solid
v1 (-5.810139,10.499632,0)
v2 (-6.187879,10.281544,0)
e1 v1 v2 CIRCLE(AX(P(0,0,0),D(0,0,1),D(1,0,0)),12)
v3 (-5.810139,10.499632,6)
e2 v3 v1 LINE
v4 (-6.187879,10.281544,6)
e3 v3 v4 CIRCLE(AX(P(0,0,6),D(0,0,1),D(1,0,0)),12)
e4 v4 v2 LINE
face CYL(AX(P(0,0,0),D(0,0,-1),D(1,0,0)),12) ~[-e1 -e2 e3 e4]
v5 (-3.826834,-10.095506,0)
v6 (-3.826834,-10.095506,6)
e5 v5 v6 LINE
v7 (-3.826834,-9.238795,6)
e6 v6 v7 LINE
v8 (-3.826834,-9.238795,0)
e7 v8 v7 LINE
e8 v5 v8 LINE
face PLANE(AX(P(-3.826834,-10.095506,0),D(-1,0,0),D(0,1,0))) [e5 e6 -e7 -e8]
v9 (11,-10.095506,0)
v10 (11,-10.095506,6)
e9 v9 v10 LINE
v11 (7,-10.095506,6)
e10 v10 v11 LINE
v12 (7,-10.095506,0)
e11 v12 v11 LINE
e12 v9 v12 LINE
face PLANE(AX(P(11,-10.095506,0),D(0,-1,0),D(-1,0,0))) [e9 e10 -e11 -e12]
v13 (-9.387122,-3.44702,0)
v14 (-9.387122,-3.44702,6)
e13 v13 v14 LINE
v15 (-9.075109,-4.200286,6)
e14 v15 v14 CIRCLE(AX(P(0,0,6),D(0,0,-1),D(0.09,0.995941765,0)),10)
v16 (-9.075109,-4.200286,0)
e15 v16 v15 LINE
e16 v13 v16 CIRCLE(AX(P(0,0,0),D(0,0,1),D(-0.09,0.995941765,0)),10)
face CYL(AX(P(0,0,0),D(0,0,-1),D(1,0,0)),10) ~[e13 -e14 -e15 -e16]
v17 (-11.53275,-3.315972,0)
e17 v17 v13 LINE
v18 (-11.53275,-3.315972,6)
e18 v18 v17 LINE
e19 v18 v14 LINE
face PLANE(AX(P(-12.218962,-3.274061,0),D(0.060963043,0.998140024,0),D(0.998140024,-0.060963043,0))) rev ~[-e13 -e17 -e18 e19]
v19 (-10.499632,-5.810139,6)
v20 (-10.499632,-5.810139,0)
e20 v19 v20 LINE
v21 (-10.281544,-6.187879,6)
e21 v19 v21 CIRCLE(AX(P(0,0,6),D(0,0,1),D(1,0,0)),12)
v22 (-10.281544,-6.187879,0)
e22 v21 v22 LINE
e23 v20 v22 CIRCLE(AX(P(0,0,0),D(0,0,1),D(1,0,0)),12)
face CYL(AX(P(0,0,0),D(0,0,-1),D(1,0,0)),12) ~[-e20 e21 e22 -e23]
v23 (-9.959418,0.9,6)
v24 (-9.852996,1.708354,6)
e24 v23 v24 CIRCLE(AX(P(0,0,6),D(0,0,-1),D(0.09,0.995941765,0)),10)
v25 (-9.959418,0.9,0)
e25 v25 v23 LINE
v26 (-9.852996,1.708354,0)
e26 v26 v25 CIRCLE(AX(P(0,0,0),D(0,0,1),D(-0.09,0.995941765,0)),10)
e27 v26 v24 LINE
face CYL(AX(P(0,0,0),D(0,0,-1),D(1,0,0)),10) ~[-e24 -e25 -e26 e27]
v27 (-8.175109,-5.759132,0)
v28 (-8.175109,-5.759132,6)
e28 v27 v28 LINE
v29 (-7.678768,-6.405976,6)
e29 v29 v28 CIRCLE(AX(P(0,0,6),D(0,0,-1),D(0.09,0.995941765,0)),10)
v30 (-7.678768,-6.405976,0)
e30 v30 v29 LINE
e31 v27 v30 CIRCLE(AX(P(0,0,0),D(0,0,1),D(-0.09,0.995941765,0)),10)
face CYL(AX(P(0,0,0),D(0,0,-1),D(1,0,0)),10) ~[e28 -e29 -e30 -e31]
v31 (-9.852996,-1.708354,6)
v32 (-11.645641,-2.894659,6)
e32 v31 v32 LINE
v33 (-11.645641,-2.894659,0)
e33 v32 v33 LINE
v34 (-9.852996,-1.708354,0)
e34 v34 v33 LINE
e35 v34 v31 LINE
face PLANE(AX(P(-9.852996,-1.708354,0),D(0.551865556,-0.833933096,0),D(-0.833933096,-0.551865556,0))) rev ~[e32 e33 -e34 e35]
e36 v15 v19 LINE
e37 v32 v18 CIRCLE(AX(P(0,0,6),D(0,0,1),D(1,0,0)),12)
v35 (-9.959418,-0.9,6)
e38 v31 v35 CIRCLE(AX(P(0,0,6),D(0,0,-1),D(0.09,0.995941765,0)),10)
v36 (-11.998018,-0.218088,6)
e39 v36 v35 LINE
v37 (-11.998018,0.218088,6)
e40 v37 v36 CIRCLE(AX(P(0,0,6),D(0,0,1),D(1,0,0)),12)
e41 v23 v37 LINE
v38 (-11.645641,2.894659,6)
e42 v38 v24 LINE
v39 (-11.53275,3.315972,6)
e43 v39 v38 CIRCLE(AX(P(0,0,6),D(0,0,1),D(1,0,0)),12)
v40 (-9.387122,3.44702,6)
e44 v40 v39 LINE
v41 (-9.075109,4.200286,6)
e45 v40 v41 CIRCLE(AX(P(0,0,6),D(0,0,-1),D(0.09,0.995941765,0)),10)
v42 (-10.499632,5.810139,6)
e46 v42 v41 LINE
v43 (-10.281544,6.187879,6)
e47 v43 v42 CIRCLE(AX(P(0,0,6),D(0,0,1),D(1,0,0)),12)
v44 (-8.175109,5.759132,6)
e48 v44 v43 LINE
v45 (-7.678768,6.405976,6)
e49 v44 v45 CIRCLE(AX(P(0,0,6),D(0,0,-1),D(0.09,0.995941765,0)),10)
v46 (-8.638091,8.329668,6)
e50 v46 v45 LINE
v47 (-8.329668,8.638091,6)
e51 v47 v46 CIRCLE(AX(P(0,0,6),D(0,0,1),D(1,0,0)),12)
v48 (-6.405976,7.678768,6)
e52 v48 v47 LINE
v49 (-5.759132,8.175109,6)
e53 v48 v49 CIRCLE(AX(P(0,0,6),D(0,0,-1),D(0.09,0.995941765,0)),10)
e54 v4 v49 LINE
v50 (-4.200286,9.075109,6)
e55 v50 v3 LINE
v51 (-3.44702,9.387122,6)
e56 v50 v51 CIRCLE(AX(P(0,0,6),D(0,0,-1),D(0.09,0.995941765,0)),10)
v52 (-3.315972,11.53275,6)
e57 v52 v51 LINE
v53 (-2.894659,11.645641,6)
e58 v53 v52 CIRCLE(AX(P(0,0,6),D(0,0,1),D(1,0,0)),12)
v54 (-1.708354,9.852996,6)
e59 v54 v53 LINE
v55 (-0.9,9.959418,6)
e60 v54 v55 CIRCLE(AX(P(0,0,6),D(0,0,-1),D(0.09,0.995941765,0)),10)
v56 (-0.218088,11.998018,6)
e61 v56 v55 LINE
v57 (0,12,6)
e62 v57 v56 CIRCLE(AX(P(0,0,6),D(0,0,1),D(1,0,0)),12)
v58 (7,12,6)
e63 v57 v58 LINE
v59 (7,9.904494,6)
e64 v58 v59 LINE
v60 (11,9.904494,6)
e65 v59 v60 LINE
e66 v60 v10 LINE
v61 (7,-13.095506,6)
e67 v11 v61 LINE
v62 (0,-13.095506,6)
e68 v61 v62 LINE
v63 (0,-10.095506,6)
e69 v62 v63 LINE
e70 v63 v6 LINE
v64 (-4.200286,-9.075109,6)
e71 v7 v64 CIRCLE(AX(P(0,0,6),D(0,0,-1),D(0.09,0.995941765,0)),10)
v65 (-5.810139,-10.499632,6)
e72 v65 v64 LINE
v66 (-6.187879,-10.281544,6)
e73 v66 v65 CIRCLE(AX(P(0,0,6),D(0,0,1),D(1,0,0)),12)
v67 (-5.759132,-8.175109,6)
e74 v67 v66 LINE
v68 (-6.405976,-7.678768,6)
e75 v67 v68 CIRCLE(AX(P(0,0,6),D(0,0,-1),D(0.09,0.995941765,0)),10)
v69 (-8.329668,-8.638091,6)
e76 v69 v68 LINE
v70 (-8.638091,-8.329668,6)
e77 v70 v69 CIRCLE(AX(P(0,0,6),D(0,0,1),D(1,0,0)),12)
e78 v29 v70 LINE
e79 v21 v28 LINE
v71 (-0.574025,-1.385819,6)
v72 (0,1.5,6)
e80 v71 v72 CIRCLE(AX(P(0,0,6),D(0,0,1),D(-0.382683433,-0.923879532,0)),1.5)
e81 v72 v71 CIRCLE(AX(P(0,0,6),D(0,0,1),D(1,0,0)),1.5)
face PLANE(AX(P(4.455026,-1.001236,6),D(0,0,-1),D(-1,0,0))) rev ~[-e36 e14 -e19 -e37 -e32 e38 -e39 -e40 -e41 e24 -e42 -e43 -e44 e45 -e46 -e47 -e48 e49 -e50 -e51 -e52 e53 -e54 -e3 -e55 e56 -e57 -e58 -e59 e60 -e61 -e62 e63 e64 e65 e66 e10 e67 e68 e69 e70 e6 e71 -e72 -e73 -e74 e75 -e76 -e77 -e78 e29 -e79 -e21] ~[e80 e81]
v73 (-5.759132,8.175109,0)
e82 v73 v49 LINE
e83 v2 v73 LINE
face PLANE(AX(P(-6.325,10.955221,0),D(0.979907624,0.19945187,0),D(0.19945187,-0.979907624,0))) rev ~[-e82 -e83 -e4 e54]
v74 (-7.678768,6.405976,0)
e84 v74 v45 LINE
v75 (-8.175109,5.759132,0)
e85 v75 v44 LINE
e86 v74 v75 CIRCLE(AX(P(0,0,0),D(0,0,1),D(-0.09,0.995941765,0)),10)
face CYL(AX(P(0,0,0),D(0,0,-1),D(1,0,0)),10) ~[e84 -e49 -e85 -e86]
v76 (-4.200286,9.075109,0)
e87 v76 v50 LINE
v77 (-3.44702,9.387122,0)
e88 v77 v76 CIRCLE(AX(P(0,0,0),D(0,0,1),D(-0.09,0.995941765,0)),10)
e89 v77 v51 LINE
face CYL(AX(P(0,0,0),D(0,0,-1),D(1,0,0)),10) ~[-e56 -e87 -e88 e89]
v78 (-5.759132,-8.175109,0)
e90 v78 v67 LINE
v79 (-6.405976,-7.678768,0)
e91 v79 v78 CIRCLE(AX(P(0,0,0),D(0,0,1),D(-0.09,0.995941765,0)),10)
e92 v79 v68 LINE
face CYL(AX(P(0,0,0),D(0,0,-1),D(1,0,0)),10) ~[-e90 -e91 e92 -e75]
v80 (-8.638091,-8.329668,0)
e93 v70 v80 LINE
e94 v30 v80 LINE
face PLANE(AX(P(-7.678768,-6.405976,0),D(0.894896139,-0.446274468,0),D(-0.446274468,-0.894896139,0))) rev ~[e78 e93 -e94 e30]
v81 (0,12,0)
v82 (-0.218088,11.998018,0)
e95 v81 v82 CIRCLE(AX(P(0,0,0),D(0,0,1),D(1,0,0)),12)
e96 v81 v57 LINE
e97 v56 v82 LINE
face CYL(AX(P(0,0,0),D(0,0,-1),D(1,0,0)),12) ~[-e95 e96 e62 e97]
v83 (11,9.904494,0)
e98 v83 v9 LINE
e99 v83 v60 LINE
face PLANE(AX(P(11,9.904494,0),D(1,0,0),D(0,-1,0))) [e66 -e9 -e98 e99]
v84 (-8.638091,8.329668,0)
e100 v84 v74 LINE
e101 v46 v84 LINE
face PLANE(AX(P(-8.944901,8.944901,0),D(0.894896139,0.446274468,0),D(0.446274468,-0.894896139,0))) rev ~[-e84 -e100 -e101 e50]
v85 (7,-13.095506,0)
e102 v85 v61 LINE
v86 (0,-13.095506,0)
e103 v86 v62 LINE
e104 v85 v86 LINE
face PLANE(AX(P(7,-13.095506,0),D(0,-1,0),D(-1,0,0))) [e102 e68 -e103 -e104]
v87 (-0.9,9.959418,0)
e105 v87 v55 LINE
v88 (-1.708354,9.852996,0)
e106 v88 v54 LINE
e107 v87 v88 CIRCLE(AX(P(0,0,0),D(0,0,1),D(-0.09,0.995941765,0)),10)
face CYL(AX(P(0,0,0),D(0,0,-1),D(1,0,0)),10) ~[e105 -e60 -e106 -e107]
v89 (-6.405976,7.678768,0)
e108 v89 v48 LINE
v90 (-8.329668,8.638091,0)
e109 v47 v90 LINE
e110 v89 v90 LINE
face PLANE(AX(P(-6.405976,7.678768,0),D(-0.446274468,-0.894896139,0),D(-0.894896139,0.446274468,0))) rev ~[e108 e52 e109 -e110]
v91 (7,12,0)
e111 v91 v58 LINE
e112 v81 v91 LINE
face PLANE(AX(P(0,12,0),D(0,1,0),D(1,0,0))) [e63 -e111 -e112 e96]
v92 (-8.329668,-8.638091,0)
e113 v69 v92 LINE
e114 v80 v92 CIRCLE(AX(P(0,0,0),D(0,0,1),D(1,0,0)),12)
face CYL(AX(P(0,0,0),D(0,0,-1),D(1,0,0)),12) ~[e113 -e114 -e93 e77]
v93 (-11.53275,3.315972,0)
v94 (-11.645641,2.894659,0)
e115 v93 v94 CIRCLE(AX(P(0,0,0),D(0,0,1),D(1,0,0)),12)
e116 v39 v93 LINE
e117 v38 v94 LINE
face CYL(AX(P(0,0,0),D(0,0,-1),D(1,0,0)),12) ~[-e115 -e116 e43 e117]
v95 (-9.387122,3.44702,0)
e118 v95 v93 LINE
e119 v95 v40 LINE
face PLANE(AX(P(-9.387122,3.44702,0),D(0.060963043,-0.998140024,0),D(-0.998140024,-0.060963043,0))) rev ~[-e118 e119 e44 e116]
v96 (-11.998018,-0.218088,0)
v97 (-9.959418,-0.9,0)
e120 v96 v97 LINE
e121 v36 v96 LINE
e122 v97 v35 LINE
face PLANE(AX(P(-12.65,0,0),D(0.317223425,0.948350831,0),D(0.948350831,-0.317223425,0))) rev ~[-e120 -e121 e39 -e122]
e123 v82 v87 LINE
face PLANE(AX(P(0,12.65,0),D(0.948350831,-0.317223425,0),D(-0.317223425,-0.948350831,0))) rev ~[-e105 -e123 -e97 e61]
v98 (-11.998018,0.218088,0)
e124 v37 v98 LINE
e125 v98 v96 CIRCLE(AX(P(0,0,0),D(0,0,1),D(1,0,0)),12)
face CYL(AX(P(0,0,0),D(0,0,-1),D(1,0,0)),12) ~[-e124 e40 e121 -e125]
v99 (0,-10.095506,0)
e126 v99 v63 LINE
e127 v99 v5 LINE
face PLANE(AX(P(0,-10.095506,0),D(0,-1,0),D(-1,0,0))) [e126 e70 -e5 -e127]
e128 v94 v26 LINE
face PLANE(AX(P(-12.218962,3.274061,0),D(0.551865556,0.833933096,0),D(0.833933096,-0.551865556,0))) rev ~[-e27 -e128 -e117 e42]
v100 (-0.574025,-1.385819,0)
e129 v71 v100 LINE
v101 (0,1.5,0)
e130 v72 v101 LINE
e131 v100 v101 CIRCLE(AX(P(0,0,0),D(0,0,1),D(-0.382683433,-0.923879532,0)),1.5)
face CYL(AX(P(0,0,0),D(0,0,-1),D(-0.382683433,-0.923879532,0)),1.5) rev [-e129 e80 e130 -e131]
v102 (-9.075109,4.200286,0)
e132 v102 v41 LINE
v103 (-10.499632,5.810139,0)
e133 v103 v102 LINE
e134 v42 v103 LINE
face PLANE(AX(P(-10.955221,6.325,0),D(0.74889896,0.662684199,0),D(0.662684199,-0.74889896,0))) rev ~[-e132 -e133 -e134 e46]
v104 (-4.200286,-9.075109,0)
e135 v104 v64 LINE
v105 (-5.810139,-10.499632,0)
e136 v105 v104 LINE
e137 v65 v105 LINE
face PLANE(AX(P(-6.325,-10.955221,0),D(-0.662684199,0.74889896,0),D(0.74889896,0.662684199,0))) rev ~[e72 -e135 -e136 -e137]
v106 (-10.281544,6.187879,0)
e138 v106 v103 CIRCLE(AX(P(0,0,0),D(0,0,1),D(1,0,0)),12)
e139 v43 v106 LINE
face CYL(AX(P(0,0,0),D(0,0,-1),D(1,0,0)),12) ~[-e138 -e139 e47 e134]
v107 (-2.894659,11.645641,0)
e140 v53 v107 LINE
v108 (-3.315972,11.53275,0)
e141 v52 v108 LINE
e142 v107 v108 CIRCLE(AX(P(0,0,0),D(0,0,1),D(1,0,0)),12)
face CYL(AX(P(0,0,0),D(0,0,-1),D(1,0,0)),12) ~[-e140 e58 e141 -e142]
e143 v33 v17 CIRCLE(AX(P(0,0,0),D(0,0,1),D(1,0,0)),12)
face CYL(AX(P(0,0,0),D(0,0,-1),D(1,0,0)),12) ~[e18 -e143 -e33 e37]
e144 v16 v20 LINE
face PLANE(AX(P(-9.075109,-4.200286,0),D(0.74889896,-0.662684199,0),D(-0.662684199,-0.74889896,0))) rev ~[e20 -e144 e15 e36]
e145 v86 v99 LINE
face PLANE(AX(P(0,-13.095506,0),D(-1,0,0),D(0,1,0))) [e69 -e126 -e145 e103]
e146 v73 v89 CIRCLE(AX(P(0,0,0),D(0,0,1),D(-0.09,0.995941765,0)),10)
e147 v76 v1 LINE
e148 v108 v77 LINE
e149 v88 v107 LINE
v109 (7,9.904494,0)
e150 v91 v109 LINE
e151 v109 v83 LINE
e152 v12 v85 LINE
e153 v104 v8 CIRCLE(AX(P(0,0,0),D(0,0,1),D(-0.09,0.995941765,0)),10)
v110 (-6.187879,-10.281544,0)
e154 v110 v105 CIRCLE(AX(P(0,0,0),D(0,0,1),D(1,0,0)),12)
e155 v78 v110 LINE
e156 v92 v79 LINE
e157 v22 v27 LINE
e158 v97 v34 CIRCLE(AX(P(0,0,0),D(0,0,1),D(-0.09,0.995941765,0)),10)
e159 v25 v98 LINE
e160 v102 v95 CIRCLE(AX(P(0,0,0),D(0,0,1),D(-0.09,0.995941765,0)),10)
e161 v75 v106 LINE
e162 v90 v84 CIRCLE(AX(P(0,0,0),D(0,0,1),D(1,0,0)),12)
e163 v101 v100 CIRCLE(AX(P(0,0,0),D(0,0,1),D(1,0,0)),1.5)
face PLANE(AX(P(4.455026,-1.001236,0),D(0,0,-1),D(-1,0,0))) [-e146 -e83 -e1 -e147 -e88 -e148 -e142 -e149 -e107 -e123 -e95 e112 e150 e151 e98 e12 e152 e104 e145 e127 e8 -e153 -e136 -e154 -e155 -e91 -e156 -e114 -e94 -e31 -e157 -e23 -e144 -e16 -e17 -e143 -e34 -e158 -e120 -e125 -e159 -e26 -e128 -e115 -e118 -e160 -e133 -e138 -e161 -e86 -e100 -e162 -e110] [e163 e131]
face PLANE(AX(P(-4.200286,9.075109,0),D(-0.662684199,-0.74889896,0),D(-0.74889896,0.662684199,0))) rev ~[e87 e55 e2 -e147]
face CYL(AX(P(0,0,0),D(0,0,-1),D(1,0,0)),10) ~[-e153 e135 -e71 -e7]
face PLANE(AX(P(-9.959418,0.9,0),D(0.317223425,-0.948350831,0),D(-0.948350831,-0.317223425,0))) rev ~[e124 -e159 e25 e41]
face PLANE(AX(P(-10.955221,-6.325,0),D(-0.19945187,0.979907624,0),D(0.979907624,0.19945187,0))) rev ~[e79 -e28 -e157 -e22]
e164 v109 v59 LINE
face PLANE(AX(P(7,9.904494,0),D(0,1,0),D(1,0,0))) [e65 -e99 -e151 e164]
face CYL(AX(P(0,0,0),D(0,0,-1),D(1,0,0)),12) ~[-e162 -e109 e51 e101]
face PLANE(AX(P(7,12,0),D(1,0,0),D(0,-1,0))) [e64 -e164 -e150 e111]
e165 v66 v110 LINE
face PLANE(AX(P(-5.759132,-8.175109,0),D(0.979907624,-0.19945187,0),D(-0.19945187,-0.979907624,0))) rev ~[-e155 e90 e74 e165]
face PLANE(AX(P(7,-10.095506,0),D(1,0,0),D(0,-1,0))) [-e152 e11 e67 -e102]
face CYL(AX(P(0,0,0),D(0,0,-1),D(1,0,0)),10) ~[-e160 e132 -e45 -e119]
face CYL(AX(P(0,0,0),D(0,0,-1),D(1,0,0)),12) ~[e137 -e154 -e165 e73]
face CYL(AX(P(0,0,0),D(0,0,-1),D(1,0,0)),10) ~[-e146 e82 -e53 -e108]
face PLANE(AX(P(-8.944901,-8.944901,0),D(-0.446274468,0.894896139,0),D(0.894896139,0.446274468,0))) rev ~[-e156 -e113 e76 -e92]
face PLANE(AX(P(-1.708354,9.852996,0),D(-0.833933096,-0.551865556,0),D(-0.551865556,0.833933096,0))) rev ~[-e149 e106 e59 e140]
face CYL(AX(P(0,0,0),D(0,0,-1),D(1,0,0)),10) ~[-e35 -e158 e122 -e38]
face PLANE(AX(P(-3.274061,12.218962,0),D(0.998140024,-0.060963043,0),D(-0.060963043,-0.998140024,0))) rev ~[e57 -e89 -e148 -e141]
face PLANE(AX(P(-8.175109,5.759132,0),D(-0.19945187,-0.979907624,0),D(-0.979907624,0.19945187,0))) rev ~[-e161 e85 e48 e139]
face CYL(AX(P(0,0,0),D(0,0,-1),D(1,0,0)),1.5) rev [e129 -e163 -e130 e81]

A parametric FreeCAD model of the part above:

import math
import FreeCAD as App
import Part
import Sketcher
Q = App.Units.Quantity

doc = App.newDocument("Part")
body = doc.addObject("PartDesign::Body", "Body")

sketch1 = body.newObject("Sketcher::SketchObject", "Sketch")
sketch1.AttachmentSupport = (doc.getObject("XY_Plane"), [""])
sketch1.MapMode = "FlatFace"
sketch1.addGeometry(Part.Circle(App.Vector(0, 0, 0), App.Vector(0, 0, 1), 10), False)
sketch1.addConstraint([
    Sketcher.Constraint("Coincident", 0, 3, -1, 1),
    Sketcher.Constraint("Diameter", 0, Q("20 mm")),
])
pad1 = body.newObject("PartDesign::Pad", "Pad")
pad1.Profile = sketch1
pad1.Length = 6

sketch2 = body.newObject("Sketcher::SketchObject", "Sketch001")
sketch2.AttachmentSupport = (doc.getObject("XY_Plane"), [""])
sketch2.MapMode = "FlatFace"
sketch2.addGeometry([
    Part.LineSegment(App.Vector(0, 12.7, 0), App.Vector(-0.9, 10, 0)),
    Part.ArcOfCircle(Part.Circle(App.Vector(0, 0, 0), App.Vector(0, 0, 1), 10), math.radians(84.84), math.radians(95.16)),
    Part.LineSegment(App.Vector(0.9, 10, 0), App.Vector(0, 12.7, 0)),
], False)
sketch2.addConstraint([
    Sketcher.Constraint("Coincident", 0, 2, 1, 2),
    Sketcher.Constraint("Coincident", 1, 1, 2, 1),
    Sketcher.Constraint("Coincident", 2, 2, 0, 1),
    Sketcher.Constraint("Coincident", 1, 3, -1, 1),
    Sketcher.Constraint("PointOnObject", 2, 2, -2),
    Sketcher.Constraint("Horizontal", 0, 2, 1, 1),
    Sketcher.Constraint("Radius", 1, Q("10 mm")),
    Sketcher.Constraint("DistanceX", 0, 2, -1, 1, Q("0.9 mm")),
    Sketcher.Constraint("DistanceY", -1, 1, 2, 2, Q("12.65 mm")),
])
pad2 = body.newObject("PartDesign::Pad", "Pad001")
pad2.Profile = sketch2
pad2.Length = 6
doc.recompute()

polarpattern = body.newObject("PartDesign::PolarPattern", "PolarPattern")
polarpattern.Originals = [pad2]
polarpattern.Axis = (doc.getObject("Z_Axis"), [""])
polarpattern.Angle = 360
polarpattern.Occurrences = 24
body.Tip = polarpattern

sketch3 = body.newObject("Sketcher::SketchObject", "Sketch002")
sketch3.AttachmentSupport = (doc.getObject("XY_Plane"), [""])
sketch3.MapMode = "FlatFace"
sketch3.addGeometry([
    Part.Circle(App.Vector(0, 0, 0), App.Vector(0, 0, 1), 13),
    Part.Circle(App.Vector(0, 0, 0), App.Vector(0, 0, 1), 12),
], False)
sketch3.addConstraint([
    Sketcher.Constraint("Coincident", 0, 3, -1, 1),
    Sketcher.Constraint("Coincident", 1, 3, -1, 1),
    Sketcher.Constraint("Diameter", 1, Q("24 mm")),
    Sketcher.Constraint("Diameter", 0, Q("25.3 mm")),
])
pocket1 = body.newObject("PartDesign::Pocket", "Pocket")
pocket1.Profile = sketch3
pocket1.Length = 6
pocket1.Reversed = True

sketch4 = body.newObject("Sketcher::SketchObject", "Sketch003")
sketch4.AttachmentSupport = (doc.getObject("XY_Plane"), [""])
sketch4.MapMode = "FlatFace"
sketch4.addGeometry([
    Part.LineSegment(App.Vector(0, 12, 0), App.Vector(0, 0, 0)),
    Part.LineSegment(App.Vector(0, 0, 0), App.Vector(-3.8, -9.2, 0)),
    Part.LineSegment(App.Vector(-3.8, -9.2, 0), App.Vector(-4.6, -11.1, 0)),
    Part.ArcOfCircle(Part.Circle(App.Vector(0, 0, 0), App.Vector(0, 0, 1), 12), math.radians(-112), math.radians(90)),
], False)
sketch4.addConstraint([
    Sketcher.Constraint("Coincident", 0, 2, 1, 1),
    Sketcher.Constraint("Coincident", 1, 2, 2, 1),
    Sketcher.Constraint("Coincident", 2, 2, 3, 1),
    Sketcher.Constraint("Coincident", 3, 2, 0, 1),
    Sketcher.Constraint("Vertical", 0),
    Sketcher.Constraint("Coincident", 3, 3, -1, 1),
    Sketcher.Constraint("Coincident", 0, 2, -1, 1),
    Sketcher.Constraint("Parallel", 1, 2),
    Sketcher.Constraint("Radius", 3, Q("12 mm")),
    Sketcher.Constraint("Distance", 1, Q("10 mm")),
    Sketcher.Constraint("Angle", 1, Q("-112.5 deg")),
])
pocket2 = body.newObject("PartDesign::Pocket", "Pocket001")
pocket2.Profile = sketch4
pocket2.Length = 6
pocket2.Reversed = True

sketch5 = body.newObject("Sketcher::SketchObject", "Sketch004")
sketch5.AttachmentSupport = (doc.getObject("XY_Plane"), [""])
sketch5.MapMode = "FlatFace"
sketch5.addGeometry(Part.Circle(App.Vector(0, 0, 0), App.Vector(0, 0, 1), 1.5), False)
sketch5.addConstraint([
    Sketcher.Constraint("Coincident", 0, 3, -1, 1),
    Sketcher.Constraint("Diameter", 0, Q("3 mm")),
])
pocket3 = body.newObject("PartDesign::Pocket", "Pocket002")
pocket3.Profile = sketch5
pocket3.Length = 6
pocket3.Reversed = True

sketch6 = body.newObject("Sketcher::SketchObject", "Sketch005")
sketch6.AttachmentSupport = (doc.getObject("XY_Plane"), [""])
sketch6.MapMode = "FlatFace"
sketch6.addGeometry([
    Part.LineSegment(App.Vector(0, 12, 0), App.Vector(0, 1.5, 0)),
    Part.ArcOfCircle(Part.Circle(App.Vector(0, 0, 0), App.Vector(0, 0, 1), 1.5), math.radians(-113), math.radians(90)),
    Part.LineSegment(App.Vector(-0.6, -1.4, 0), App.Vector(-3.8, -9.2, 0)),
    Part.LineSegment(App.Vector(-3.8, -9.2, 0), App.Vector(-3.8, -10.1, 0)),
    Part.LineSegment(App.Vector(-3.8, -10.1, 0), App.Vector(0, -10.1, 0)),
    Part.LineSegment(App.Vector(0, -10.1, 0), App.Vector(0, -13.1, 0)),
    Part.LineSegment(App.Vector(0, -13.1, 0), App.Vector(7, -13.1, 0)),
    Part.LineSegment(App.Vector(7, -13.1, 0), App.Vector(7, -10.1, 0)),
    Part.LineSegment(App.Vector(7, -10.1, 0), App.Vector(11, -10.1, 0)),
    Part.LineSegment(App.Vector(11, -10.1, 0), App.Vector(11, 9.9, 0)),
    Part.LineSegment(App.Vector(11, 9.9, 0), App.Vector(7, 9.9, 0)),
    Part.LineSegment(App.Vector(7, 9.9, 0), App.Vector(7, 12, 0)),
    Part.LineSegment(App.Vector(7, 12, 0), App.Vector(0, 12, 0)),
], False)
sketch6.addConstraint([
    Sketcher.Constraint("Coincident", 0, 2, 1, 2),
    Sketcher.Constraint("Coincident", 1, 1, 2, 1),
    Sketcher.Constraint("Coincident", 2, 2, 3, 1),
    Sketcher.Constraint("Coincident", 3, 2, 4, 1),
    Sketcher.Constraint("Coincident", 4, 2, 5, 1),
    Sketcher.Constraint("Coincident", 5, 2, 6, 1),
    Sketcher.Constraint("Coincident", 6, 2, 7, 1),
    Sketcher.Constraint("Coincident", 7, 2, 8, 1),
    Sketcher.Constraint("Coincident", 8, 2, 9, 1),
    Sketcher.Constraint("Coincident", 9, 2, 10, 1),
    Sketcher.Constraint("Coincident", 10, 2, 11, 1),
    Sketcher.Constraint("Coincident", 11, 2, 12, 1),
    Sketcher.Constraint("Coincident", 12, 2, 0, 1),
    Sketcher.Constraint("Vertical", 0),
    Sketcher.Constraint("Vertical", 3),
    Sketcher.Constraint("Horizontal", 4),
    Sketcher.Constraint("Vertical", 5),
    Sketcher.Constraint("Horizontal", 6),
    Sketcher.Constraint("Vertical", 7),
    Sketcher.Constraint("Horizontal", 8),
    Sketcher.Constraint("Vertical", 9),
    Sketcher.Constraint("Horizontal", 10),
    Sketcher.Constraint("Vertical", 11),
    Sketcher.Constraint("Horizontal", 12),
    Sketcher.Constraint("Coincident", 1, 3, -1, 1),
    Sketcher.Constraint("PointOnObject", 0, 2, -2),
    Sketcher.Constraint("PointOnObject", 4, 2, -2),
    Sketcher.Constraint("Horizontal", 4, 2, 7, 2),
    Sketcher.Constraint("Vertical", 7, 2, 10, 2),
    Sketcher.Constraint("Radius", 1, Q("1.5 mm")),
    Sketcher.Constraint("DistanceX", 6, 1, 6, 2, Q("7 mm")),
    Sketcher.Constraint("DistanceX", 8, 1, 8, 2, Q("4 mm")),
    Sketcher.Constraint("DistanceY", 5, 2, 5, 1, Q("3 mm")),
    Sketcher.Constraint("DistanceY", 9, 1, 9, 2, Q("20 mm")),
    Sketcher.Constraint("DistanceY", 0, 2, 0, 1, Q("10.5 mm")),
    Sketcher.Constraint("Angle", 2, Q("-112.5 deg")),
    Sketcher.Constraint("Distance", 2, Q("8.5 mm")),
    Sketcher.Constraint("DistanceY", 3, 2, 3, 1, Q("0.856711 mm")),
    Sketcher.Constraint("DistanceX", 4, 1, 4, 2, Q("3.826834 mm")),
])
pad3 = body.newObject("PartDesign::Pad", "Pad002")
pad3.Profile = sketch6
pad3.Length = 6

doc.recompute()
